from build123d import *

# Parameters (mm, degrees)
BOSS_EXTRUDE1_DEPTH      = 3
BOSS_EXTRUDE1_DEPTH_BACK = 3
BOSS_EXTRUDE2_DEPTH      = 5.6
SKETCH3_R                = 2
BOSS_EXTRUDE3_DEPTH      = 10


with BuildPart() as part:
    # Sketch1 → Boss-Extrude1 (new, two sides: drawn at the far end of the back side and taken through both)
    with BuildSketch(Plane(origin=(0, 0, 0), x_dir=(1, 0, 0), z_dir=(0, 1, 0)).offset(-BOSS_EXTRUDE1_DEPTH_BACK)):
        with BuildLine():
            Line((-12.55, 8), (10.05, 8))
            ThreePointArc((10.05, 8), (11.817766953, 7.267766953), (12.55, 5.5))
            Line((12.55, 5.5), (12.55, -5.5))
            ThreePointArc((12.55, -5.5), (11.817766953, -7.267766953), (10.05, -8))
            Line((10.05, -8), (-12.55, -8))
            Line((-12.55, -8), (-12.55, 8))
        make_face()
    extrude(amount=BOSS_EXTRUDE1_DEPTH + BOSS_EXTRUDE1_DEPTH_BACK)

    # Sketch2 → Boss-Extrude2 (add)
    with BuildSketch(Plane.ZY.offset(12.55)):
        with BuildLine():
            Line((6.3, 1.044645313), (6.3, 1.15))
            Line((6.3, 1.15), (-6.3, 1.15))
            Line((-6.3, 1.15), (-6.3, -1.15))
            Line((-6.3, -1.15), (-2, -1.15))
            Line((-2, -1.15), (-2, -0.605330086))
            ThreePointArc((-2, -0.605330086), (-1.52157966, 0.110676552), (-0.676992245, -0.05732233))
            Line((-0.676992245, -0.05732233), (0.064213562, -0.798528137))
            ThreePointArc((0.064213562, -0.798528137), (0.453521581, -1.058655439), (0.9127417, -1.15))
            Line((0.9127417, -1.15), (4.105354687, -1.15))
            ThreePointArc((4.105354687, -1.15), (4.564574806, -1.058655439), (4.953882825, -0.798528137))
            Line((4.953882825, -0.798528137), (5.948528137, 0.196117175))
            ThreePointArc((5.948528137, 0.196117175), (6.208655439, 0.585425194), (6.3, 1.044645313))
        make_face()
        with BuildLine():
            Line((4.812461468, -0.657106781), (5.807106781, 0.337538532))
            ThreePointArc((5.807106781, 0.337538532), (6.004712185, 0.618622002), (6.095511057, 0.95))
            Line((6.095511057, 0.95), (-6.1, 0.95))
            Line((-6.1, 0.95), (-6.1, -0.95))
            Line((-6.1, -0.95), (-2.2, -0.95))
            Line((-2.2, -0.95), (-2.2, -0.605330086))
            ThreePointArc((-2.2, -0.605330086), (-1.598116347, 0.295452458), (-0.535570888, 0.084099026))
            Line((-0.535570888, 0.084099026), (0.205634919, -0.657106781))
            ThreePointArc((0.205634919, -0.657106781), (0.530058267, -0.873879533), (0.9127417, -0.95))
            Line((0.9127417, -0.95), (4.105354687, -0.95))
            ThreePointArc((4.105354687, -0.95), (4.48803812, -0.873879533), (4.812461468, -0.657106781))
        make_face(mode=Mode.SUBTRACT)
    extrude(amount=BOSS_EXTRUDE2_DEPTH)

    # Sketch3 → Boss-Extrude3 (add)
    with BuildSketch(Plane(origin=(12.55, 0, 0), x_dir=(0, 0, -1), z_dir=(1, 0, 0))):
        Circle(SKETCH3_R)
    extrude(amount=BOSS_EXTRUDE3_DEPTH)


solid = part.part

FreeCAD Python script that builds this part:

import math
import FreeCAD as App
import Part
import Sketcher

V = App.Vector
Q = App.Units.Quantity

doc = App.newDocument("Part")
params = doc.addObject("Spreadsheet::Sheet", "Params")
for row, (alias, value) in enumerate([
    ("sketch1_radius", "2.5 mm"),
    ("sketch1_height", "16 mm"),
    ("sketch1_width", "22.6 mm"),
    ("pad1_length", "3 mm"),
    ("pad1_length2", "3 mm"),
    ("sketch2_radius", "1 mm"),
    ("sketch2_radius2", "1.2 mm"),
    ("sketch2_width", "2.3 mm"),
    ("sketch2_width2", "1.9 mm"),
    ("sketch2_height", "12.6 mm"),
    ("pad2_length", "5.6 mm"),
    ("sketch3_diameter", "4 mm"),
    ("pad3_length", "10 mm"),
], start=1):
    params.set(f"A{row}", alias)
    params.set(f"B{row}", "=" + value)
    params.setAlias(f"B{row}", alias)

body = doc.addObject("PartDesign::Body", "Body")

sketch1 = doc.addObject("Sketcher::SketchObject", "Sketch")
body.addObject(sketch1)
sketch1.AttachmentSupport = (doc.XZ_Plane, [""])
sketch1.MapMode = "FlatFace"
sketch1.addGeometry([
    Part.LineSegment(V(10.05, -8, 0), V(-12.55, -8, 0)),
    Part.LineSegment(V(-12.55, -8, 0), V(-12.55, 8, 0)),
    Part.LineSegment(V(-12.55, 8, 0), V(10.05, 8, 0)),
    Part.ArcOfCircle(Part.Circle(V(10.05, 5.5, 0), V(0, 0, 1), 2.5), math.radians(0), math.radians(90)),
    Part.LineSegment(V(12.55, 5.5, 0), V(12.55, -5.5, 0)),
    Part.ArcOfCircle(Part.Circle(V(10.05, -5.5, 0), V(0, 0, 1), 2.5), math.radians(-90), math.radians(0)),
], False)
sketch1.addConstraint([
    Sketcher.Constraint("Coincident", 0, 2, 1, 1),
    Sketcher.Constraint("Coincident", 1, 2, 2, 1),
    Sketcher.Constraint("Tangent", 2, 2, 3, 2),
    Sketcher.Constraint("Tangent", 3, 1, 4, 1),
    Sketcher.Constraint("Tangent", 4, 2, 5, 2),
    Sketcher.Constraint("Tangent", 5, 1, 0, 1),
    Sketcher.Constraint("Horizontal", 0),
    Sketcher.Constraint("Vertical", 1),
    Sketcher.Constraint("Horizontal", 2),
    Sketcher.Constraint("Vertical", 4),
    Sketcher.Constraint("Equal", 3, 5),
    Sketcher.Constraint("Radius", 3, Q("2.5 mm")),
    Sketcher.Constraint("DistanceY", 1, 1, 1, 2, Q("16 mm")),
    Sketcher.Constraint("DistanceX", 0, 2, 0, 1, Q("22.6 mm")),
    Sketcher.Constraint("DistanceY", 0, 2, -1, 1, Q("8 mm")),
    Sketcher.Constraint("DistanceX", -1, 1, 3, 3, Q("10.05 mm")),
])
sketch1.setExpression("Constraints[11]", "Params.sketch1_radius")
sketch1.setExpression("Constraints[12]", "Params.sketch1_height")
sketch1.setExpression("Constraints[13]", "Params.sketch1_width")
pad1 = doc.addObject("PartDesign::Pad", "Pad")
body.addObject(pad1)
pad1.Profile = sketch1
pad1.Type = "TwoLengths"
pad1.setExpression("Length", "Params.pad1_length")
pad1.setExpression("Length2", "Params.pad1_length2")
pad1.Reversed = True

sketch2 = doc.addObject("Sketcher::SketchObject", "Sketch001")
body.addObject(sketch2)
sketch2.AttachmentSupport = (doc.YZ_Plane, [""])
sketch2.MapMode = "FlatFace"
sketch2.AttachmentOffset = App.Placement(V(0, 0, -12.55), App.Rotation())
sketch2.addGeometry([
    Part.LineSegment(V(1.044645, 6.3, 0), V(1.15, 6.3, 0)),
    Part.LineSegment(V(1.15, 6.3, 0), V(1.15, -6.3, 0)),
    Part.LineSegment(V(1.15, -6.3, 0), V(-1.15, -6.3, 0)),
    Part.LineSegment(V(-1.15, -6.3, 0), V(-1.15, -2, 0)),
    Part.LineSegment(V(-1.15, -2, 0), V(-0.60533, -2, 0)),
    Part.ArcOfCircle(Part.Circle(V(-0.60533, -1.225, 0), V(0, 0, 1), 0.775), math.radians(-90), math.radians(45)),
    Part.LineSegment(V(-0.057322, -0.676992, 0), V(-0.798528, 0.064214, 0)),
    Part.ArcOfCircle(Part.Circle(V(0.05, 0.912742, 0), V(0, 0, 1), 1.2), math.radians(180), math.radians(225)),
    Part.LineSegment(V(-1.15, 0.912742, 0), V(-1.15, 4.105355, 0)),
    Part.ArcOfCircle(Part.Circle(V(0.05, 4.105355, 0), V(0, 0, 1), 1.2), math.radians(135), math.radians(180)),
    Part.LineSegment(V(-0.798528, 4.953883, 0), V(0.196117, 5.948528, 0)),
    Part.ArcOfCircle(Part.Circle(V(1.044645, 5.1, 0), V(0, 0, 1), 1.2), math.radians(90), math.radians(135)),
    Part.LineSegment(V(0.337539, 5.807107, 0), V(-0.657107, 4.812461, 0)),
    Part.ArcOfCircle(Part.Circle(V(0.05, 4.105355, 0), V(0, 0, 1), 1), math.radians(135), math.radians(180)),
    Part.LineSegment(V(-0.95, 4.105355, 0), V(-0.95, 0.912742, 0)),
    Part.ArcOfCircle(Part.Circle(V(0.05, 0.912742, 0), V(0, 0, 1), 1), math.radians(180), math.radians(225)),
    Part.LineSegment(V(-0.657107, 0.205635, 0), V(0.084099, -0.535571, 0)),
    Part.ArcOfCircle(Part.Circle(V(-0.60533, -1.225, 0), V(0, 0, 1), 0.975), math.radians(-90), math.radians(45)),
    Part.LineSegment(V(-0.60533, -2.2, 0), V(-0.95, -2.2, 0)),
    Part.LineSegment(V(-0.95, -2.2, 0), V(-0.95, -6.1, 0)),
    Part.LineSegment(V(-0.95, -6.1, 0), V(0.95, -6.1, 0)),
    Part.LineSegment(V(0.95, -6.1, 0), V(0.95, 6.095511, 0)),
    Part.ArcOfCircle(Part.Circle(V(1.044645, 5.1, 0), V(0, 0, 1), 1), math.radians(95.430906), math.radians(135)),
], False)
sketch2.addConstraint([
    Sketcher.Constraint("Coincident", 0, 2, 1, 1),
    Sketcher.Constraint("Coincident", 1, 2, 2, 1),
    Sketcher.Constraint("Coincident", 2, 2, 3, 1),
    Sketcher.Constraint("Coincident", 3, 2, 4, 1),
    Sketcher.Constraint("Tangent", 4, 2, 5, 1),
    Sketcher.Constraint("Tangent", 5, 2, 6, 1),
    Sketcher.Constraint("Tangent", 6, 2, 7, 2),
    Sketcher.Constraint("Tangent", 7, 1, 8, 1),
    Sketcher.Constraint("Tangent", 8, 2, 9, 2),
    Sketcher.Constraint("Tangent", 9, 1, 10, 1),
    Sketcher.Constraint("Tangent", 10, 2, 11, 2),
    Sketcher.Constraint("Tangent", 11, 1, 0, 1),
    Sketcher.Constraint("Tangent", 12, 2, 13, 1),
    Sketcher.Constraint("Tangent", 13, 2, 14, 1),
    Sketcher.Constraint("Tangent", 14, 2, 15, 1),
    Sketcher.Constraint("Tangent", 15, 2, 16, 1),
    Sketcher.Constraint("Tangent", 16, 2, 17, 2),
    Sketcher.Constraint("Tangent", 17, 1, 18, 1),
    Sketcher.Constraint("Coincident", 18, 2, 19, 1),
    Sketcher.Constraint("Coincident", 19, 2, 20, 1),
    Sketcher.Constraint("Coincident", 20, 2, 21, 1),
    Sketcher.Constraint("Coincident", 21, 2, 22, 1),
    Sketcher.Constraint("Tangent", 22, 2, 12, 1),
    Sketcher.Constraint("Horizontal", 0),
    Sketcher.Constraint("Vertical", 1),
    Sketcher.Constraint("Horizontal", 2),
    Sketcher.Constraint("Vertical", 3),
    Sketcher.Constraint("Horizontal", 4),
    Sketcher.Constraint("Vertical", 8),
    Sketcher.Constraint("Vertical", 14),
    Sketcher.Constraint("Horizontal", 18),
    Sketcher.Constraint("Vertical", 19),
    Sketcher.Constraint("Horizontal", 20),
    Sketcher.Constraint("Vertical", 21),
    Sketcher.Constraint("Coincident", 13, 3, 9, 3),
    Sketcher.Constraint("Coincident", 15, 3, 7, 3),
    Sketcher.Constraint("Coincident", 17, 3, 5, 3),
    Sketcher.Constraint("Coincident", 22, 3, 11, 3),
    Sketcher.Constraint("Equal", 7, 9),
    Sketcher.Constraint("Equal", 9, 11),
    Sketcher.Constraint("Equal", 15, 22),
    Sketcher.Constraint("Symmetric", 0, 2, 2, 2, -1, 1),
    Sketcher.Constraint("Perpendicular", 6, 10),
    Sketcher.Constraint("Perpendicular", 12, 16),
    Sketcher.Constraint("Vertical", 3, 2, 7, 1),
    Sketcher.Constraint("Vertical", 6, 2, 9, 1),
    Sketcher.Constraint("Vertical", 14, 2, 18, 2),
    Sketcher.Constraint("Radius", 13, Q("1 mm")),
    Sketcher.Constraint("Radius", 7, Q("1.2 mm")),
    Sketcher.Constraint("DistanceX", 2, 2, 2, 1, Q("2.3 mm")),
    Sketcher.Constraint("DistanceX", 20, 1, 20, 2, Q("1.9 mm")),
    Sketcher.Constraint("DistanceY", 1, 2, 1, 1, Q("12.6 mm")),
    Sketcher.Constraint("DistanceY", 3, 1, 3, 2, Q("4.3 mm")),
    Sketcher.Constraint("DistanceY", 19, 2, 19, 1, Q("3.9 mm")),
    Sketcher.Constraint("Radius", 5, Q("0.775 mm")),
    Sketcher.Constraint("DistanceX", 4, 1, 4, 2, Q("0.54467 mm")),
    Sketcher.Constraint("DistanceY", 21, 1, 21, 2, Q("12.195511 mm")),
])
sketch2.setExpression("Constraints[47]", "Params.sketch2_radius")
sketch2.setExpression("Constraints[48]", "Params.sketch2_radius2")
sketch2.setExpression("Constraints[49]", "Params.sketch2_width")
sketch2.setExpression("Constraints[50]", "Params.sketch2_width2")
sketch2.setExpression("Constraints[51]", "Params.sketch2_height")
pad2 = doc.addObject("PartDesign::Pad", "Pad001")
body.addObject(pad2)
pad2.Profile = sketch2
pad2.setExpression("Length", "Params.pad2_length")
pad2.Reversed = True

sketch3 = doc.addObject("Sketcher::SketchObject", "Sketch002")
body.addObject(sketch3)
sketch3.AttachmentSupport = (doc.YZ_Plane, [""])
sketch3.MapMode = "FlatFace"
sketch3.AttachmentOffset = App.Placement(V(0, 0, 12.55), App.Rotation())
sketch3.addGeometry(Part.Circle(V(0, 0, 0), V(0, 0, 1), 2), False)
sketch3.addConstraint([
    Sketcher.Constraint("Coincident", 0, 3, -1, 1),
    Sketcher.Constraint("Diameter", 0, Q("4 mm")),
])
sketch3.setExpression("Constraints[1]", "Params.sketch3_diameter")
pad3 = doc.addObject("PartDesign::Pad", "Pad002")
body.addObject(pad3)
pad3.Profile = sketch3
pad3.setExpression("Length", "Params.pad3_length")

doc.recompute()
